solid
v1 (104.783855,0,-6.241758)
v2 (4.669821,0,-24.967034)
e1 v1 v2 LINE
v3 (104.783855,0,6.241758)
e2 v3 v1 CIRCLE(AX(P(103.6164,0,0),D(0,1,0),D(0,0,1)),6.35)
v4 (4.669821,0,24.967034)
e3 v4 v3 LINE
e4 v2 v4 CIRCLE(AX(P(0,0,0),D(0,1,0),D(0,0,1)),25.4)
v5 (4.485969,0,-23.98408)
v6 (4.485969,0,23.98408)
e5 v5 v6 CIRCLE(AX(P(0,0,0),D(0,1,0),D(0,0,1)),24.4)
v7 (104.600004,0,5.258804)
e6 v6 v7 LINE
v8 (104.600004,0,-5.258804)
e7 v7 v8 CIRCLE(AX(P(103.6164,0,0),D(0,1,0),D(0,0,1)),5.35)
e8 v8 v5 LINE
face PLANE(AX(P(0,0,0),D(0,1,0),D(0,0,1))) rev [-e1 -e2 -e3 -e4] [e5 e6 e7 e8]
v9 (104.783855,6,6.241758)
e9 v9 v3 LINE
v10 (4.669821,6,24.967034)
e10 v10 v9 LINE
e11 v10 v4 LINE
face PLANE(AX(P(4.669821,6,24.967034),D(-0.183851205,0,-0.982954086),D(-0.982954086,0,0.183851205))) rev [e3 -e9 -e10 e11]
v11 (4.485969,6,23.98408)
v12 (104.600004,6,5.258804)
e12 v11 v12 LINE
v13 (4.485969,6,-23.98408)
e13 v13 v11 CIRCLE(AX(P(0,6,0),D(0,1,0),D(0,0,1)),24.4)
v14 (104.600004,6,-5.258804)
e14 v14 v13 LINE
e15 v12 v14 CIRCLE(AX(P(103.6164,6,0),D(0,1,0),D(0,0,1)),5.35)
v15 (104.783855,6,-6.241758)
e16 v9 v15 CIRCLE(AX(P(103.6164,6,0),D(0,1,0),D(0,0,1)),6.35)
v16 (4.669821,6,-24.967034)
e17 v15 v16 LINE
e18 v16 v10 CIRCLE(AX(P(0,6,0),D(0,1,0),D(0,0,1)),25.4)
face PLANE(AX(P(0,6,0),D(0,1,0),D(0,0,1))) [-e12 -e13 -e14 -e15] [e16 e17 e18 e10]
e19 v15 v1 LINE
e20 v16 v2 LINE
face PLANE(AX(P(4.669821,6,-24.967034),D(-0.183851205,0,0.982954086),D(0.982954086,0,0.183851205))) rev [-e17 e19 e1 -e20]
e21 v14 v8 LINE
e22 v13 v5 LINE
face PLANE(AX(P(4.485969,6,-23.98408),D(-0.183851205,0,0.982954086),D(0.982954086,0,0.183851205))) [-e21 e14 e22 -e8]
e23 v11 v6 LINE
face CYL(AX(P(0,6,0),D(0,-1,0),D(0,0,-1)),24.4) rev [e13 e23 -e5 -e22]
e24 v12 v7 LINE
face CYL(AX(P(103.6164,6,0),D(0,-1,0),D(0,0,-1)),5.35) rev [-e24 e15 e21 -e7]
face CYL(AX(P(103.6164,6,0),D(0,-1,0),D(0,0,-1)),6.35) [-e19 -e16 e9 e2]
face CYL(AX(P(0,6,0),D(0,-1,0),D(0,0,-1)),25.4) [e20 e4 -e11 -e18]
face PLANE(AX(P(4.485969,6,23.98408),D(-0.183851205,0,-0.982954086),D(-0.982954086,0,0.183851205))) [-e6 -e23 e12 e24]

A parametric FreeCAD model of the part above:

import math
import FreeCAD as App
import Part
import Sketcher

V = App.Vector
Q = App.Units.Quantity

doc = App.newDocument("Part")
body = doc.addObject("PartDesign::Body", "Body")

# Sketch on XZ plane
sketch1 = body.newObject("Sketcher::SketchObject", "Sketch")
sketch1.AttachmentSupport = (doc.getObject("XZ_Plane"), [""])
sketch1.MapMode = "FlatFace"
sketch1.addGeometry([
    Part.LineSegment(V(105, -6, 0), V(5, -25, 0)),  # 0
    Part.ArcOfCircle(Part.Circle(V(0, 0, 0), V(0, 0, 1), 25), math.radians(79), math.radians(281)),  # 1
    Part.LineSegment(V(5, 25, 0), V(105, 6, 0)),  # 2
    Part.ArcOfCircle(Part.Circle(V(104, 0, 0), V(0, 0, 1), 6), math.radians(-79), math.radians(79)),  # 3
    Part.LineSegment(V(4, -24, 0), V(105, -5, 0)),  # 4
    Part.ArcOfCircle(Part.Circle(V(104, 0, 0), V(0, 0, 1), 5), math.radians(-79), math.radians(79)),  # 5
    Part.LineSegment(V(105, 5, 0), V(4, 24, 0)),  # 6
    Part.ArcOfCircle(Part.Circle(V(0, 0, 0), V(0, 0, 1), 24), math.radians(79), math.radians(281)),  # 7
], False)
sketch1.addConstraint([
    Sketcher.Constraint("Tangent", 0, 2, 1, 2),
    Sketcher.Constraint("Tangent", 1, 1, 2, 1),
    Sketcher.Constraint("Tangent", 2, 2, 3, 2),
    Sketcher.Constraint("Tangent", 3, 1, 0, 1),
    Sketcher.Constraint("Tangent", 4, 2, 5, 1),
    Sketcher.Constraint("Tangent", 5, 2, 6, 1),
    Sketcher.Constraint("Tangent", 6, 2, 7, 1),
    Sketcher.Constraint("Tangent", 7, 2, 4, 1),
    Sketcher.Constraint("Coincident", 1, 3, -1, 1),
    Sketcher.Constraint("Coincident", 7, 3, -1, 1),
    Sketcher.Constraint("Coincident", 5, 3, 3, 3),
    Sketcher.Constraint("PointOnObject", 3, 3, -1),
    Sketcher.Constraint("Parallel", 0, 4),
    Sketcher.Constraint("Radius", 1, Q("25.4 mm")),
    Sketcher.Constraint("Radius", 7, Q("24.4 mm")),
    Sketcher.Constraint("Radius", 3, Q("6.35 mm")),
    Sketcher.Constraint("DistanceX", -1, 1, 3, 3, Q("103.6164 mm")),
])
pad1 = body.newObject("PartDesign::Pad", "Pad")
pad1.Profile = sketch1
pad1.Length = 6
pad1.Reversed = True

doc.recompute()
